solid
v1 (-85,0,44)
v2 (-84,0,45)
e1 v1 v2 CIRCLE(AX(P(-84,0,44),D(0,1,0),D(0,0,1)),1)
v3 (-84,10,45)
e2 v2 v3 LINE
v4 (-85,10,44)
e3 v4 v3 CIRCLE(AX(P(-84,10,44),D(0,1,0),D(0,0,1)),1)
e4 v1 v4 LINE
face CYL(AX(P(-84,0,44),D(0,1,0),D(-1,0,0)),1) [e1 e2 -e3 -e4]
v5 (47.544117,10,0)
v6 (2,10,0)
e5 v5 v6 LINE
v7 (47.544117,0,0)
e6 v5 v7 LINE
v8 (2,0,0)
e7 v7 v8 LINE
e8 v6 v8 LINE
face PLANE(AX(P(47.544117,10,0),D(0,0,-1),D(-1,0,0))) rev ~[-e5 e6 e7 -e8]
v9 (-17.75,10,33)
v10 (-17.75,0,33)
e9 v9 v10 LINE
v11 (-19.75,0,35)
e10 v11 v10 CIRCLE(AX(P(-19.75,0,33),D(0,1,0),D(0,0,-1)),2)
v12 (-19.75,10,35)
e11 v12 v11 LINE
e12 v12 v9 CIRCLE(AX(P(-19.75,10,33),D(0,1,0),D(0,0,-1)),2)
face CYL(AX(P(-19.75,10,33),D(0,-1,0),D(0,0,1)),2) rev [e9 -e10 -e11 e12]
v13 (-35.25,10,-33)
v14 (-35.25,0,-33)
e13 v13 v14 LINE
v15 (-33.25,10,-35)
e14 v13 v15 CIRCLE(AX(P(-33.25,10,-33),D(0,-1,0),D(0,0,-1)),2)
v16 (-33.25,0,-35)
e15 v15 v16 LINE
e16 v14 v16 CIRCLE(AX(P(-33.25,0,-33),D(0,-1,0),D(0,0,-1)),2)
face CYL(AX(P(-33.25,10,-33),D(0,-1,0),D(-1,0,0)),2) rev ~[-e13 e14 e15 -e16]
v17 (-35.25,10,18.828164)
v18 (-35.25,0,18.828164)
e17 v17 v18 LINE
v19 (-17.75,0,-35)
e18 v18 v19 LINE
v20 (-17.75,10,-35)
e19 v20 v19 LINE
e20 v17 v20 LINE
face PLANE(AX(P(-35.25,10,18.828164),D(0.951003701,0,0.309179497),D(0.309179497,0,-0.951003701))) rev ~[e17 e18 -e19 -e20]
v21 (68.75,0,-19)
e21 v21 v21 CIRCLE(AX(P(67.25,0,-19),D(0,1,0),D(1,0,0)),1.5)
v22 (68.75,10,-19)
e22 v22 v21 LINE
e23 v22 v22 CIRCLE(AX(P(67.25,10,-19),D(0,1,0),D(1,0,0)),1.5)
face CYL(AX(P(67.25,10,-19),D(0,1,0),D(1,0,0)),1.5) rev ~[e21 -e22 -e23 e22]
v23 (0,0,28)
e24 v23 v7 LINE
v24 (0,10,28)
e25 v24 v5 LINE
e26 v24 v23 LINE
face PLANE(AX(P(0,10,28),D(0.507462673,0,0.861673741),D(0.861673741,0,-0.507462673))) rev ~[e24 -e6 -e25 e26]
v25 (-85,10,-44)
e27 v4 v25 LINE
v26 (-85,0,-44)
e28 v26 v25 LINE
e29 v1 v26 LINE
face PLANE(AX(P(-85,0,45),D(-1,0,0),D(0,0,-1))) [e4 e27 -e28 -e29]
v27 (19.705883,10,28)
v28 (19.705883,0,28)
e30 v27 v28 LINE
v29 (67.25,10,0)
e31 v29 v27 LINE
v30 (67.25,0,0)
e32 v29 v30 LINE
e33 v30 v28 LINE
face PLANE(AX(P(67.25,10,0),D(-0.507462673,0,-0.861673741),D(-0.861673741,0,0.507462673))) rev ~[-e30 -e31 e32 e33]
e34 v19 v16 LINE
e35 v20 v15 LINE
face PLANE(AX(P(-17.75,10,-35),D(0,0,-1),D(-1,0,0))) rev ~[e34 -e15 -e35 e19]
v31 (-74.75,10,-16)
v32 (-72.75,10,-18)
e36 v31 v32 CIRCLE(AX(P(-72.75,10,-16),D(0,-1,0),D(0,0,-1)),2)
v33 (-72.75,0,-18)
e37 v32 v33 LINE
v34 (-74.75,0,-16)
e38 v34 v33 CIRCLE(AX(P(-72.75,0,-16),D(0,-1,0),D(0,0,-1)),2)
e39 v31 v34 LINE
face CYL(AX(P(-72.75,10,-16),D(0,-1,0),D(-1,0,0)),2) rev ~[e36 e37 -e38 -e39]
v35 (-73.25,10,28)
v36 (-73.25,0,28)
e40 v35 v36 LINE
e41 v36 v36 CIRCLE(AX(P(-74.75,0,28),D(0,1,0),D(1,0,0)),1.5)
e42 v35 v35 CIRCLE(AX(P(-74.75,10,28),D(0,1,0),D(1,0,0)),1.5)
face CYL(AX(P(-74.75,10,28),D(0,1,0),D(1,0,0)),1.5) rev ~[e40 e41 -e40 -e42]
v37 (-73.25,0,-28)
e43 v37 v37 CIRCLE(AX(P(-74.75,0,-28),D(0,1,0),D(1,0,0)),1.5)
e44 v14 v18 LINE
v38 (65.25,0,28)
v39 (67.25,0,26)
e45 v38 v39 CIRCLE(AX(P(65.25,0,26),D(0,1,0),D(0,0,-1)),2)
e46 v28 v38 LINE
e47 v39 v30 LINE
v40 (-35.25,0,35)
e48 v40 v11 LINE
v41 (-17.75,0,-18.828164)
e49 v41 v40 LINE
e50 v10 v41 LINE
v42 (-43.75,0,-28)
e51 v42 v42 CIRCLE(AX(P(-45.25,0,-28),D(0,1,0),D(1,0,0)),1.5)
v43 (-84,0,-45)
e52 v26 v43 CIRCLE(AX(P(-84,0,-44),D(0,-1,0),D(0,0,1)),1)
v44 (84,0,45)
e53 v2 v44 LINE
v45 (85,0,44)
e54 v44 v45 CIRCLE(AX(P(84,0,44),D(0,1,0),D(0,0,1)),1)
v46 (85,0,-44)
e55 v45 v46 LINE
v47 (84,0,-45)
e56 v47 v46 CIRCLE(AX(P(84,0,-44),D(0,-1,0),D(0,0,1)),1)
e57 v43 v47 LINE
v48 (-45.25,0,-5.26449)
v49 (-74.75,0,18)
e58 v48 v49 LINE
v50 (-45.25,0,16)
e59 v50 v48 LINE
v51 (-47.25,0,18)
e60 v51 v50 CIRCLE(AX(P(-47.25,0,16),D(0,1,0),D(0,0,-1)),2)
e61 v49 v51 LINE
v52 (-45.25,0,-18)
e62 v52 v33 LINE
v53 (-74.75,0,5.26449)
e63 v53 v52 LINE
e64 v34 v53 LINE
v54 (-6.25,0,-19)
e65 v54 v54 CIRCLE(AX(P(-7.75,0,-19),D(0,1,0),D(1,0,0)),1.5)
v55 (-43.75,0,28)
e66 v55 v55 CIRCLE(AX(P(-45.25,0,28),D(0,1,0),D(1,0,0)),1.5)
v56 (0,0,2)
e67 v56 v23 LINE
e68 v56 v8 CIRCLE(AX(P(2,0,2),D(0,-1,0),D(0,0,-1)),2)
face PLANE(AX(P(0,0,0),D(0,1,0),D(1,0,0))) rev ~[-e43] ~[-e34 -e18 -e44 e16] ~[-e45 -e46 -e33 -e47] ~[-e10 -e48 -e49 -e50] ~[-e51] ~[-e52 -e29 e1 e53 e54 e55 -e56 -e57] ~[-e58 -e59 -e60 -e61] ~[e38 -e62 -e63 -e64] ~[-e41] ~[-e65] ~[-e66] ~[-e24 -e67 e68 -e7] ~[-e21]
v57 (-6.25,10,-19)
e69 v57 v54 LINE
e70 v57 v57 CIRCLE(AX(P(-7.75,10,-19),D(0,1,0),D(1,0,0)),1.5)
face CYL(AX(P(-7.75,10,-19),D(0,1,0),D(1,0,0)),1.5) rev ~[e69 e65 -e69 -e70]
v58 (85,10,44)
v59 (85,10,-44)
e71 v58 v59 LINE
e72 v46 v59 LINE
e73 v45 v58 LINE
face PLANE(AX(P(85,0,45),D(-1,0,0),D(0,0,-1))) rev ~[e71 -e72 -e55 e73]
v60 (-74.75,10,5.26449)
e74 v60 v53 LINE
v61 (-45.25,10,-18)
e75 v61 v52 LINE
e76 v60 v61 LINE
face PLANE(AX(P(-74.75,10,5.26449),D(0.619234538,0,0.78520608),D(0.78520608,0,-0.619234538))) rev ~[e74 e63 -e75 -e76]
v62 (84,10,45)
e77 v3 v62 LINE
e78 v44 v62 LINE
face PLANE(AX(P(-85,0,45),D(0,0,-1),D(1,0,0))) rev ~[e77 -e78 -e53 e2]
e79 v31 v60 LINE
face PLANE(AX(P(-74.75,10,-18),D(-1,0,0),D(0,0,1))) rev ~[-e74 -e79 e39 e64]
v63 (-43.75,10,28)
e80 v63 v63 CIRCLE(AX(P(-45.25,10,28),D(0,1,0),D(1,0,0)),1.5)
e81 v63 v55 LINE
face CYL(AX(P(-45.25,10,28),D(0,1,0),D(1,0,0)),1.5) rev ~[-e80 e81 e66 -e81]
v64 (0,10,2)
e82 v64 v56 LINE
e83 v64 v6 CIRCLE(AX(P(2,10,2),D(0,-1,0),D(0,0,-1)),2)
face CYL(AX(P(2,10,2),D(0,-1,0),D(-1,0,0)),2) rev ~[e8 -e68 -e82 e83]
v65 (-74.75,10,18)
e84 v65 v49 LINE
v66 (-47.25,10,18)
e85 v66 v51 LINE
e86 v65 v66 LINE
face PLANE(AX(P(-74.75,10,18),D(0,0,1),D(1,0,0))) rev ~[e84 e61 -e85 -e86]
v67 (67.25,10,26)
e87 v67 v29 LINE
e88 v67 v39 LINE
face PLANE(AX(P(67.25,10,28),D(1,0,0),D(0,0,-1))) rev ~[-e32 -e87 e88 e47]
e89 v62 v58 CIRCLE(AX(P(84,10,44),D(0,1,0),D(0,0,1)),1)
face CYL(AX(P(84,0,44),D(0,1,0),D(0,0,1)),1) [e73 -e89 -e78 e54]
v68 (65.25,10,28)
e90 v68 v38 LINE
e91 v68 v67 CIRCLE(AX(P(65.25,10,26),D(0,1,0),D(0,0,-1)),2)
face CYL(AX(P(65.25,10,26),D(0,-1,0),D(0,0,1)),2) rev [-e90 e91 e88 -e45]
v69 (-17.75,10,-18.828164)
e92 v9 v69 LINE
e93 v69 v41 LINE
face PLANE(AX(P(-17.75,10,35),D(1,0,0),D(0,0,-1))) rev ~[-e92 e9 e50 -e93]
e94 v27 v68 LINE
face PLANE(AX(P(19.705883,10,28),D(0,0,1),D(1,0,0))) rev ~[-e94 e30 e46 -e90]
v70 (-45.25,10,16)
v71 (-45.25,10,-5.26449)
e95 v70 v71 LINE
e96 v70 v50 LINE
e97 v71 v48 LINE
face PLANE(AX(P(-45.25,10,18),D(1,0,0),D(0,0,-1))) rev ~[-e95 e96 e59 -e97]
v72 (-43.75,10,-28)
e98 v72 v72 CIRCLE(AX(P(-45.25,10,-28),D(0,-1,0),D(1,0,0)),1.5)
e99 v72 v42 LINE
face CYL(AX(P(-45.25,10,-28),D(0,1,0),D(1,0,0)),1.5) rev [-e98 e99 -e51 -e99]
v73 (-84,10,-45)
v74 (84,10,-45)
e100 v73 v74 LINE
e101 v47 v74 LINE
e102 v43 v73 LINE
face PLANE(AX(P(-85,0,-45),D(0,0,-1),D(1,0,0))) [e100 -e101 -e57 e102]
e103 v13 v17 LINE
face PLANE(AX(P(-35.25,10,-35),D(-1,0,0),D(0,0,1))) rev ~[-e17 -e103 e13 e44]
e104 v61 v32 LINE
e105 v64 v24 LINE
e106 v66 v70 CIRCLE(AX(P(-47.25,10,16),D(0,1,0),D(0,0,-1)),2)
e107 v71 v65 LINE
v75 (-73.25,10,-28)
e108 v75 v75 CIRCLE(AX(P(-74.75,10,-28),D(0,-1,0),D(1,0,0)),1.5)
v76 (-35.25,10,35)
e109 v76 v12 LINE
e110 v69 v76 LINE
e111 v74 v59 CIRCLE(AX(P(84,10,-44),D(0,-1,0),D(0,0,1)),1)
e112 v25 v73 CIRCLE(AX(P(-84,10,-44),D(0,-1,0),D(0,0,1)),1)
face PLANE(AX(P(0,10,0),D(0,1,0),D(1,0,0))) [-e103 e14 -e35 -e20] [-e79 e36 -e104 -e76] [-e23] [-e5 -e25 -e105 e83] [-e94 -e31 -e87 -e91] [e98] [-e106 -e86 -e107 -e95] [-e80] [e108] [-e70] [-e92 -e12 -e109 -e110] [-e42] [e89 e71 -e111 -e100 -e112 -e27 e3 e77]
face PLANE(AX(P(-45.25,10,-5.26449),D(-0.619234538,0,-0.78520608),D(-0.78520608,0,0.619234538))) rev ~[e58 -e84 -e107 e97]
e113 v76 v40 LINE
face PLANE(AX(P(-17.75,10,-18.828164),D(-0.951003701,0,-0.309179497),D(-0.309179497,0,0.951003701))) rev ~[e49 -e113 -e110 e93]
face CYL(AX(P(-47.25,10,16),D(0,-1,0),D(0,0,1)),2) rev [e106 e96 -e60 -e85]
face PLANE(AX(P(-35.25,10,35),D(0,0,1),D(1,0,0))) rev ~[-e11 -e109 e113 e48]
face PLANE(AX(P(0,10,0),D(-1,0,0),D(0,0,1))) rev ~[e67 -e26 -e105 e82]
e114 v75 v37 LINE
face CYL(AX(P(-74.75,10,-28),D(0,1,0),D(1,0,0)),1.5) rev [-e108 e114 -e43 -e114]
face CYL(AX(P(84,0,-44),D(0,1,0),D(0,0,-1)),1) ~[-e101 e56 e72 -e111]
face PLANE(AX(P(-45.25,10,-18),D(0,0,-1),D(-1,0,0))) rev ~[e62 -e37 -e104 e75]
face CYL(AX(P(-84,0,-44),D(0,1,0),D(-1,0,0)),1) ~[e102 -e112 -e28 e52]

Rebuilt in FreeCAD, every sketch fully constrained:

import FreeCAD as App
import Part
import Sketcher
from FreeCAD import Vector
Q = App.Units.Quantity


def edges_at(feature, points):
    """Names of the edges that pass closest to the given points."""
    edges = feature.Shape.Edges
    near = lambda p: min(range(len(edges)), key=lambda i: edges[i].distToShape(Part.Vertex(*p))[0])
    return sorted({f"Edge{near(p) + 1}" for p in points})


def add_polygon(sketch, points):
    """Adds a closed chain of lines whose ends are joined by coincident constraints."""
    first, n = sketch.GeometryCount, len(points)
    for a, b in zip(points, points[1:] + points[:1]):
        sketch.addGeometry(Part.LineSegment(App.Vector(*a, 0), App.Vector(*b, 0)), False)
    for i in range(n):
        sketch.addConstraint(Sketcher.Constraint("Coincident", first + i, 2, first + (i + 1) % n, 1))

doc = App.newDocument("Part")
body = doc.addObject("PartDesign::Body", "Body")

sketch1 = body.newObject("Sketcher::SketchObject", "Sketch")
sketch1.AttachmentSupport = (doc.getObject("XZ_Plane"), [""])
sketch1.MapMode = "FlatFace"
add_polygon(sketch1, [(-85, -45), (-85, 45), (85, 45), (85, -45)])
sketch1.addConstraint([
    Sketcher.Constraint("Vertical", 0),
    Sketcher.Constraint("Horizontal", 1),
    Sketcher.Constraint("Vertical", 2),
    Sketcher.Constraint("Horizontal", 3),
    Sketcher.Constraint("Symmetric", 0, 2, 2, 2, -1, 1),
    Sketcher.Constraint("DistanceX", 1, 1, 1, 2, Q("170 mm")),
    Sketcher.Constraint("DistanceY", 0, 1, 0, 2, Q("90 mm")),
])
pad1 = body.newObject("PartDesign::Pad", "Pad")
pad1.Profile = sketch1
pad1.Length = 10
pad1.Reversed = True

sketch2 = body.newObject("Sketcher::SketchObject", "Sketch001")
sketch2.AttachmentSupport = (doc.getObject("XZ_Plane"), [""])
sketch2.MapMode = "FlatFace"
sketch2.AttachmentOffset = App.Placement(Vector(0, 0, -10), App.Rotation())
sketch2.addGeometry([
    Part.Circle(Vector(-74.8, 28, 0), Vector(0, 0, 1), 1.5),
    Part.Circle(Vector(-45.2, 28, 0), Vector(0, 0, 1), 1.5),
], False)
sketch2.addConstraint([
    Sketcher.Constraint("Equal", 0, 1),
    Sketcher.Constraint("Horizontal", 0, 3, 1, 3),
    Sketcher.Constraint("Diameter", 0, Q("3 mm")),
    Sketcher.Constraint("DistanceY", -1, 1, 0, 3, Q("28 mm")),
    Sketcher.Constraint("DistanceX", 0, 3, 1, 3, Q("29.5 mm")),
    Sketcher.Constraint("DistanceX", 0, 3, -1, 1, Q("74.75 mm")),
])
pocket1 = body.newObject("PartDesign::Pocket", "Pocket")
pocket1.Profile = sketch2
pocket1.Type = "ThroughAll"
pocket1.Reversed = True
doc.recompute()

mirrored = body.newObject("PartDesign::Mirrored", "Mirrored")
mirrored.Originals = [pocket1]
mirrored.MirrorPlane = (doc.getObject("XY_Plane"), [""])
body.Tip = mirrored
doc.recompute()

fillet = body.newObject("PartDesign::Fillet", "Fillet")
fillet.Base = (mirrored, edges_at(mirrored, [
    (-85, 5, -45),
    (85, 5, -45),
    (85, 5, 45),
    (-85, 5, 45),
]))
fillet.Radius = 1

sketch3 = body.newObject("Sketcher::SketchObject", "Sketch002")
sketch3.AttachmentSupport = (doc.getObject("XZ_Plane"), [""])
sketch3.MapMode = "FlatFace"
sketch3.AttachmentOffset = App.Placement(Vector(0, 0, -10), App.Rotation())
sketch3.addGeometry([
    Part.Circle(Vector(67.2, -19, 0), Vector(0, 0, 1), 1.5),
    Part.Circle(Vector(-7.8, -19, 0), Vector(0, 0, 1), 1.5),
], False)
sketch3.addConstraint([
    Sketcher.Constraint("Equal", 0, 1),
    Sketcher.Constraint("Horizontal", 0, 3, 1, 3),
    Sketcher.Constraint("Diameter", 0, Q("3 mm")),
    Sketcher.Constraint("DistanceY", 0, 3, -1, 1, Q("19 mm")),
    Sketcher.Constraint("DistanceX", 1, 3, 0, 3, Q("75 mm")),
    Sketcher.Constraint("DistanceX", -1, 1, 0, 3, Q("67.25 mm")),
])
pocket2 = body.newObject("PartDesign::Pocket", "Pocket001")
pocket2.Profile = sketch3
pocket2.Type = "ThroughAll"
pocket2.Reversed = True

sketch4 = body.newObject("Sketcher::SketchObject", "Sketch003")
sketch4.AttachmentSupport = (doc.getObject("XZ_Plane"), [""])
sketch4.MapMode = "FlatFace"
sketch4.AttachmentOffset = App.Placement(Vector(0, 0, -10), App.Rotation())
add_polygon(sketch4, [(0, 0), (0, 28), (48, 0)])
add_polygon(sketch4, [(67, 0), (20, 28), (67, 28)])
add_polygon(sketch4, [(-35, 35), (-18, 35), (-18, -19)])
add_polygon(sketch4, [(-35, -35), (-35, 19), (-18, -35)])
add_polygon(sketch4, [(-75, -18), (-75, 5), (-45, -18)])
add_polygon(sketch4, [(-75, 18), (-45, 18), (-45, -5)])
sketch4.addConstraint([
    Sketcher.Constraint("Vertical", 0),
    Sketcher.Constraint("Horizontal", 2),
    Sketcher.Constraint("Horizontal", 4),
    Sketcher.Constraint("Vertical", 5),
    Sketcher.Constraint("Horizontal", 6),
    Sketcher.Constraint("Vertical", 7),
    Sketcher.Constraint("Vertical", 9),
    Sketcher.Constraint("Horizontal", 11),
    Sketcher.Constraint("Vertical", 12),
    Sketcher.Constraint("Horizontal", 14),
    Sketcher.Constraint("Horizontal", 15),
    Sketcher.Constraint("Vertical", 16),
    Sketcher.Constraint("Coincident", 2, 2, -1, 1),
    Sketcher.Constraint("Symmetric", 6, 2, 10, 2, -1),
    Sketcher.Constraint("Symmetric", 13, 2, 15, 2, -1),
    Sketcher.Constraint("PointOnObject", 5, 2, -1),
    Sketcher.Constraint("Parallel", 1, 3),
    Sketcher.Constraint("Parallel", 8, 10),
    Sketcher.Constraint("Parallel", 13, 17),
    Sketcher.Constraint("Horizontal", 0, 2, 3, 2),
    Sketcher.Constraint("Vertical", 8, 2, 9, 2),
    Sketcher.Constraint("Vertical", 14, 2, 17, 2),
    Sketcher.Constraint("DistanceY", 0, 1, 0, 2, Q("28 mm")),
    Sketcher.Constraint("DistanceX", 6, 1, 6, 2, Q("17.5 mm")),
    Sketcher.Constraint("DistanceX", 14, 2, 14, 1, Q("29.5 mm")),
    Sketcher.Constraint("DistanceY", -1, 1, 6, 2, Q("35 mm")),
    Sketcher.Constraint("DistanceY", 13, 2, -1, 1, Q("18 mm")),
    Sketcher.Constraint("DistanceX", 6, 2, 4, 2, Q("85 mm")),
    Sketcher.Constraint("DistanceX", 12, 2, 7, 2, Q("57 mm")),
    Sketcher.Constraint("DistanceX", -1, 1, 4, 2, Q("67.25 mm")),
    Sketcher.Constraint("DistanceY", 12, 1, 12, 2, Q("23.26449 mm")),
    Sketcher.Constraint("DistanceX", 2, 2, 2, 1, Q("47.544117 mm")),
    Sketcher.Constraint("DistanceY", 7, 2, 7, 1, Q("53.828164 mm")),
])
pocket3 = body.newObject("PartDesign::Pocket", "Pocket002")
pocket3.Profile = sketch4
pocket3.Type = "ThroughAll"
pocket3.Reversed = True
doc.recompute()

fillet2 = body.newObject("PartDesign::Fillet", "Fillet001")
fillet2.Base = (pocket3, edges_at(pocket3, [
    (-17.75, 5, 35),
    (67.25, 5, 28),
    (-45.25, 5, 18),
    (0, 5, 0),
    (-74.75, 5, -18),
    (-35.25, 5, -35),
]))
fillet2.Radius = 2

doc.recompute()
